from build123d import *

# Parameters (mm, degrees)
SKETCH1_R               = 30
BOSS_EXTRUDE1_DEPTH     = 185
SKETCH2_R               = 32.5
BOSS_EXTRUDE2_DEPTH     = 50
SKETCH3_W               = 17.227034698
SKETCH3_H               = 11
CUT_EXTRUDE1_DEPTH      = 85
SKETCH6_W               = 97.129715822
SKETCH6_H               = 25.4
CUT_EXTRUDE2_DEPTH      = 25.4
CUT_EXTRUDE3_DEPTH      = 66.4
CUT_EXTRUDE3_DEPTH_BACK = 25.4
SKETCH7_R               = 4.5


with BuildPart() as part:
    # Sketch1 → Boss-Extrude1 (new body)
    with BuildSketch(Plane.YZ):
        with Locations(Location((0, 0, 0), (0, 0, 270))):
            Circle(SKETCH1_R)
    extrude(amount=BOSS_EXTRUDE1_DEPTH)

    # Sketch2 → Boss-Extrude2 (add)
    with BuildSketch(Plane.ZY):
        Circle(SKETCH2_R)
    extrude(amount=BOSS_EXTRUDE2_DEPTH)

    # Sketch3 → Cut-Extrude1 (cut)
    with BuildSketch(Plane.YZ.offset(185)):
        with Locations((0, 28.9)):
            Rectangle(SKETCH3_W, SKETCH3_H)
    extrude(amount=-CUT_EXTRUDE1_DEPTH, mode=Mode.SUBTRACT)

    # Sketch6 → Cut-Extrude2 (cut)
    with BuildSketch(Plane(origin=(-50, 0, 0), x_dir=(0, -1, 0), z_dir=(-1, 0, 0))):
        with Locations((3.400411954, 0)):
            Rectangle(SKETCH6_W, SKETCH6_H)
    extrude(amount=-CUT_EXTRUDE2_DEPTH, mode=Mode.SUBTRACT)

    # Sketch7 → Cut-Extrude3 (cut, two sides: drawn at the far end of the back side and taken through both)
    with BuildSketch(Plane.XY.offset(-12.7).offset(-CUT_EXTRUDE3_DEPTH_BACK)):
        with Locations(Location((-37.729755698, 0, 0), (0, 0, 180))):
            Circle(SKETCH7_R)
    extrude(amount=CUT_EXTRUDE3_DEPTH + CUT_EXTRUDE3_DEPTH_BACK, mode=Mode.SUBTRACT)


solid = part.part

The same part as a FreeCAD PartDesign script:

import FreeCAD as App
import Part
import Sketcher
from FreeCAD import Vector


def add_polygon(sketch, points):
    """Adds a closed chain of lines whose ends are joined by coincident constraints."""
    first, n = sketch.GeometryCount, len(points)
    for a, b in zip(points, points[1:] + points[:1]):
        sketch.addGeometry(Part.LineSegment(App.Vector(*a, 0), App.Vector(*b, 0)), False)
    for i in range(n):
        sketch.addConstraint(Sketcher.Constraint("Coincident", first + i, 2, first + (i + 1) % n, 1))

doc = App.newDocument("Part")
body = doc.addObject("PartDesign::Body", "Body")

# Sketch on YZ plane
sketch1 = body.newObject("Sketcher::SketchObject", "Sketch")
sketch1.AttachmentSupport = (doc.getObject("YZ_Plane"), [""])
sketch1.MapMode = "FlatFace"
sketch1.addGeometry(Part.Circle(Vector(0, 0, 0), Vector(0, 0, 1), 30), False)
sketch1.addConstraint(Sketcher.Constraint("Coincident", 0, 3, -1, 1))
sketch1.addConstraint(Sketcher.Constraint("Diameter", 0, 60.0))
pad1 = body.newObject("PartDesign::Pad", "Pad")
pad1.Profile = sketch1
pad1.Length = 185

# Sketch on YZ plane
sketch2 = body.newObject("Sketcher::SketchObject", "Sketch001")
sketch2.AttachmentSupport = (doc.getObject("YZ_Plane"), [""])
sketch2.MapMode = "FlatFace"
sketch2.addGeometry(Part.Circle(Vector(0, 0, 0), Vector(0, 0, 1), 32.5), False)
sketch2.addConstraint(Sketcher.Constraint("Coincident", 0, 3, -1, 1))
sketch2.addConstraint(Sketcher.Constraint("Diameter", 0, 65.0))
pad2 = body.newObject("PartDesign::Pad", "Pad001")
pad2.Profile = sketch2
pad2.Length = 50
pad2.Reversed = True

# Sketch on YZ plane
sketch3 = body.newObject("Sketcher::SketchObject", "Sketch002")
sketch3.AttachmentSupport = (doc.getObject("YZ_Plane"), [""])
sketch3.MapMode = "FlatFace"
sketch3.AttachmentOffset = App.Placement(Vector(0, 0, 185), App.Rotation())
add_polygon(sketch3, [(-8.613517, 34.4), (-8.613517, 23.4), (8.613517, 23.4), (8.613517, 34.4)])  # lines 0-3
sketch3.addConstraint(Sketcher.Constraint("Vertical", 0))
sketch3.addConstraint(Sketcher.Constraint("Horizontal", 1))
sketch3.addConstraint(Sketcher.Constraint("Vertical", 2))
sketch3.addConstraint(Sketcher.Constraint("Horizontal", 3))
sketch3.addConstraint(Sketcher.Constraint("DistanceY", 0, 2, 0, 1, 11.0))
sketch3.addConstraint(Sketcher.Constraint("DistanceY", -1, 1, 0, 2, 23.4))
sketch3.addConstraint(Sketcher.Constraint("DistanceX", 1, 1, 1, 2, 17.227035))
sketch3.addConstraint(Sketcher.Constraint("DistanceX", 0, 2, -1, 1, 8.613517))
pocket1 = body.newObject("PartDesign::Pocket", "Pocket")
pocket1.Profile = sketch3
pocket1.Length = 85

# Sketch on YZ plane
sketch4 = body.newObject("Sketcher::SketchObject", "Sketch003")
sketch4.AttachmentSupport = (doc.getObject("YZ_Plane"), [""])
sketch4.MapMode = "FlatFace"
sketch4.AttachmentOffset = App.Placement(Vector(0, 0, -50), App.Rotation())
add_polygon(sketch4, [(45.164446, 12.7), (45.164446, -12.7), (-51.96527, -12.7), (-51.96527, 12.7)])  # lines 0-3
sketch4.addConstraint(Sketcher.Constraint("Vertical", 0))
sketch4.addConstraint(Sketcher.Constraint("Horizontal", 1))
sketch4.addConstraint(Sketcher.Constraint("Vertical", 2))
sketch4.addConstraint(Sketcher.Constraint("Horizontal", 3))
sketch4.addConstraint(Sketcher.Constraint("DistanceY", 0, 2, 0, 1, 25.4))
sketch4.addConstraint(Sketcher.Constraint("DistanceY", 0, 2, -1, 1, 12.7))
sketch4.addConstraint(Sketcher.Constraint("DistanceX", 1, 2, 1, 1, 97.129716))
sketch4.addConstraint(Sketcher.Constraint("DistanceX", 1, 2, -1, 1, 51.96527))
pocket2 = body.newObject("PartDesign::Pocket", "Pocket001")
pocket2.Profile = sketch4
pocket2.Length = 25.4
pocket2.Reversed = True

# Sketch on XY plane
sketch5 = body.newObject("Sketcher::SketchObject", "Sketch004")
sketch5.AttachmentSupport = (doc.getObject("XY_Plane"), [""])
sketch5.MapMode = "FlatFace"
sketch5.AttachmentOffset = App.Placement(Vector(0, 0, -12.7), App.Rotation())
sketch5.addGeometry(Part.Circle(Vector(-37.729756, 0, 0), Vector(0, 0, 1), 4.5), False)
sketch5.addConstraint(Sketcher.Constraint("PointOnObject", 0, 3, -1))
sketch5.addConstraint(Sketcher.Constraint("Diameter", 0, 9.0))
sketch5.addConstraint(Sketcher.Constraint("DistanceX", 0, 3, -1, 1, 37.729756))
pocket3 = body.newObject("PartDesign::Pocket", "Pocket002")
pocket3.Profile = sketch5
pocket3.Type = "ThroughAll"
pocket3.Midplane = True

doc.recompute()
